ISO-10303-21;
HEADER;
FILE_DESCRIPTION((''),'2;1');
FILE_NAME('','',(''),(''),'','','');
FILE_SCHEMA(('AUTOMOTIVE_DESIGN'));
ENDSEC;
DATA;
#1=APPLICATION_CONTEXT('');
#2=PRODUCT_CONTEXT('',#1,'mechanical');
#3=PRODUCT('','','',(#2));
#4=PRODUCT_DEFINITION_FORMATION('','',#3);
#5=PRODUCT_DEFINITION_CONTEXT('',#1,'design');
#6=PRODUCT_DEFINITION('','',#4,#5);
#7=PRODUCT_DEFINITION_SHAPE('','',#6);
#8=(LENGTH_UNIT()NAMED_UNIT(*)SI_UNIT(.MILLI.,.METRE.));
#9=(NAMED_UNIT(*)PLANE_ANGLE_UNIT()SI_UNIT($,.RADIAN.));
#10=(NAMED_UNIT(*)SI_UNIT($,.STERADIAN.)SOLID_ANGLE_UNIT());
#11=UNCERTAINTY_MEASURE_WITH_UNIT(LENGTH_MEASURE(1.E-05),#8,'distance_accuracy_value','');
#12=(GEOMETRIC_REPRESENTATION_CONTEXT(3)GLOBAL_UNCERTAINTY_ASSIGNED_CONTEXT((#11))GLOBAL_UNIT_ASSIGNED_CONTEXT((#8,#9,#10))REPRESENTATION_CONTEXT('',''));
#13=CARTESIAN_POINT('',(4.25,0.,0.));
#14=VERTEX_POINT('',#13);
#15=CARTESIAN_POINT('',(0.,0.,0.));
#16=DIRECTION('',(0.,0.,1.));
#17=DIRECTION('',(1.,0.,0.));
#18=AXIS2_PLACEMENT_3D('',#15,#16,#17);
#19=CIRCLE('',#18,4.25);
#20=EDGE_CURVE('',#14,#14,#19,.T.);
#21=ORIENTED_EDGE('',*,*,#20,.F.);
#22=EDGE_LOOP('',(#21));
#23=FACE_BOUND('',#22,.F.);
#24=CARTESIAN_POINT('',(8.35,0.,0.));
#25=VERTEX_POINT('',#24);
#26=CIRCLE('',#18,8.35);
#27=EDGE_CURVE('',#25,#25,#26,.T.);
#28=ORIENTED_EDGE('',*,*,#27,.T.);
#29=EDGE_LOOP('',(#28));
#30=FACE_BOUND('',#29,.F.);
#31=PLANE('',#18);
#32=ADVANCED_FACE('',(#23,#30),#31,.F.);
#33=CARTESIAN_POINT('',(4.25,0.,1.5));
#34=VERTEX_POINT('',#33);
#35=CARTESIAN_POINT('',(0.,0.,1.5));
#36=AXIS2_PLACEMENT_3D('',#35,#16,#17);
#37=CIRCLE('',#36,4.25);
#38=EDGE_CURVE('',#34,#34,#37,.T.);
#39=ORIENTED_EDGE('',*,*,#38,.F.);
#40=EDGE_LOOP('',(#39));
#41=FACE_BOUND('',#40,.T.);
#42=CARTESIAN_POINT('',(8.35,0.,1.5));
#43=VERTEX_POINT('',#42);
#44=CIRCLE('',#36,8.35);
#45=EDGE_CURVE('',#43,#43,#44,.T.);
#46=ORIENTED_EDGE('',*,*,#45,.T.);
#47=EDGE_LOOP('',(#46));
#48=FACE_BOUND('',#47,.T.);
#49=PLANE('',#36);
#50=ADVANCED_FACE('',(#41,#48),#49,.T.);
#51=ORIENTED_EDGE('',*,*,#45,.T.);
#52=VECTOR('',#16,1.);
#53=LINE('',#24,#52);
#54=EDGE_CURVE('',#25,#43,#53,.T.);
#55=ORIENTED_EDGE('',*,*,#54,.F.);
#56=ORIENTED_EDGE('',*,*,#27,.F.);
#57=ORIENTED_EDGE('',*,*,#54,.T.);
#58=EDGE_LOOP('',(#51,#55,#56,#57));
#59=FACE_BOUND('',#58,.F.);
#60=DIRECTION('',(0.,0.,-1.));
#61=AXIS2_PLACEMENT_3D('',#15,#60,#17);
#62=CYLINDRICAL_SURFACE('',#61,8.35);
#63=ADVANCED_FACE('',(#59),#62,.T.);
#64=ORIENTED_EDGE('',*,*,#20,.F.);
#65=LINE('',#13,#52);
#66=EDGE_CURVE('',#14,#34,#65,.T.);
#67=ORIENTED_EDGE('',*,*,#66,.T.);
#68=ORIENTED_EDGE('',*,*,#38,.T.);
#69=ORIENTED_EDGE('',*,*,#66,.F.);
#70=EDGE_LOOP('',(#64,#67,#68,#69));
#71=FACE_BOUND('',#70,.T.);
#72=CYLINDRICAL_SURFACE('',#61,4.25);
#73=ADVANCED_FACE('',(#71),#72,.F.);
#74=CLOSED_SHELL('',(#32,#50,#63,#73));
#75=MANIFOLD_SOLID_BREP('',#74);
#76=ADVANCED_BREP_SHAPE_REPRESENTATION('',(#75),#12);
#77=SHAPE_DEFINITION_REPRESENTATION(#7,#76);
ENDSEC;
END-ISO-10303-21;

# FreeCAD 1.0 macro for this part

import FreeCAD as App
import Part
import Sketcher
from FreeCAD import Vector

doc = App.newDocument("Part")
body = doc.addObject("PartDesign::Body", "Body")

sketch1 = body.newObject("Sketcher::SketchObject", "Sketch")
sketch1.AttachmentSupport = (doc.getObject("XY_Plane"), [""])
sketch1.MapMode = "FlatFace"
sketch1.addGeometry([
    Part.Circle(Vector(0, 0, 0), Vector(0, 0, 1), 8.3),
    Part.Circle(Vector(0, 0, 0), Vector(0, 0, 1), 4.2),
], False)
sketch1.addConstraint([
    Sketcher.Constraint("Coincident", 0, 3, -1, 1),
    Sketcher.Constraint("Coincident", 1, 3, -1, 1),
    Sketcher.Constraint("Diameter", 0, 16.7),
    Sketcher.Constraint("Diameter", 1, 8.5),
])
pad1 = body.newObject("PartDesign::Pad", "Pad")
pad1.Profile = sketch1
pad1.Length = 1.5

doc.recompute()
